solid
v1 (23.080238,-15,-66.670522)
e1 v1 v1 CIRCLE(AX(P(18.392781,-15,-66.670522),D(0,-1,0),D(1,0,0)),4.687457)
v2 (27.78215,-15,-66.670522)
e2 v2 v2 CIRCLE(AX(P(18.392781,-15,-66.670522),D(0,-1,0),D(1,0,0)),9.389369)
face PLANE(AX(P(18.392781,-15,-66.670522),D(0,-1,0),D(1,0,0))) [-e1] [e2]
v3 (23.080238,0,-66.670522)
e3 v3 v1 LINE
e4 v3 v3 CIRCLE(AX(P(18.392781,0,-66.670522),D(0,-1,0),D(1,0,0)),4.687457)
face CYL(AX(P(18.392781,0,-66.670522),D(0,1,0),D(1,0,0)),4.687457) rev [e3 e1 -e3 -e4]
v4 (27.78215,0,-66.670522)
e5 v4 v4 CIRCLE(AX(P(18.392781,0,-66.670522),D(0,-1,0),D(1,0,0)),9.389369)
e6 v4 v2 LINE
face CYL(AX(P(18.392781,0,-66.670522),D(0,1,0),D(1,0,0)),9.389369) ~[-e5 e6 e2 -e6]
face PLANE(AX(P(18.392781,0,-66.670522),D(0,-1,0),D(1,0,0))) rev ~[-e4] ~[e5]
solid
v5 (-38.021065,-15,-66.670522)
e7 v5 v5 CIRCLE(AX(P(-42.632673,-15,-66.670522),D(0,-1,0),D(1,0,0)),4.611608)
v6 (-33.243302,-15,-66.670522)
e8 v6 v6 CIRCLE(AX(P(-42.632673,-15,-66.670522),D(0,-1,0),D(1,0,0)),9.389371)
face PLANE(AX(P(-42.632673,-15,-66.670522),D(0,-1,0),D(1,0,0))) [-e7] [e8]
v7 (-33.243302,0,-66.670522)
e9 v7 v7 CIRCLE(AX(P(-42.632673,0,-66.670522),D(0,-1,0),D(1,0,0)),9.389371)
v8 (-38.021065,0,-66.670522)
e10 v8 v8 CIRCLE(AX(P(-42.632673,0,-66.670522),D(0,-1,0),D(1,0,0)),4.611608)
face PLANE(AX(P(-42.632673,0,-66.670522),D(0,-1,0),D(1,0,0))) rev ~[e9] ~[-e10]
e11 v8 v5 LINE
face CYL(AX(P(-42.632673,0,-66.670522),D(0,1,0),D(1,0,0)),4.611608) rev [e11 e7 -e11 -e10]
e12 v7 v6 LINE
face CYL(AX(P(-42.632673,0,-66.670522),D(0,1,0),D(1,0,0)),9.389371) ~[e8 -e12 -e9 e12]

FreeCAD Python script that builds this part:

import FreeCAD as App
import Part
import Sketcher
Q = App.Units.Quantity

doc = App.newDocument("Part")
body = doc.addObject("PartDesign::Body", "Body")
body.AllowCompound = True

# Sketch on XZ plane
sketch1 = body.newObject("Sketcher::SketchObject", "Sketch")
sketch1.AttachmentSupport = (doc.getObject("XZ_Plane"), [""])
sketch1.MapMode = "FlatFace"
sketch1.addGeometry([
    Part.Circle(App.Vector(-42.6, -66.7, 0), App.Vector(0, 0, 1), 9.4),
    Part.Circle(App.Vector(-42.6, -66.7, 0), App.Vector(0, 0, 1), 4.6),
    Part.Circle(App.Vector(18.4, -66.7, 0), App.Vector(0, 0, 1), 9.4),
    Part.Circle(App.Vector(18.4, -66.7, 0), App.Vector(0, 0, 1), 4.7),
], False)
sketch1.addConstraint([
    Sketcher.Constraint("Coincident", 1, 3, 0, 3),
    Sketcher.Constraint("Coincident", 3, 3, 2, 3),
    Sketcher.Constraint("Horizontal", 1, 3, 2, 3),
    Sketcher.Constraint("Diameter", 2, Q("18.778738 mm")),
    Sketcher.Constraint("Diameter", 0, Q("18.778742 mm")),
    Sketcher.Constraint("Diameter", 1, Q("9.223216 mm")),
    Sketcher.Constraint("Diameter", 3, Q("9.374914 mm")),
    Sketcher.Constraint("DistanceX", -1, 1, 2, 3, Q("18.392781 mm")),
    Sketcher.Constraint("DistanceX", 0, 3, -1, 1, Q("42.632673 mm")),
    Sketcher.Constraint("DistanceY", 0, 3, -1, 1, Q("66.670522 mm")),
])
pad1 = body.newObject("PartDesign::Pad", "Pad")
pad1.Profile = sketch1
pad1.Length = 15

doc.recompute()
